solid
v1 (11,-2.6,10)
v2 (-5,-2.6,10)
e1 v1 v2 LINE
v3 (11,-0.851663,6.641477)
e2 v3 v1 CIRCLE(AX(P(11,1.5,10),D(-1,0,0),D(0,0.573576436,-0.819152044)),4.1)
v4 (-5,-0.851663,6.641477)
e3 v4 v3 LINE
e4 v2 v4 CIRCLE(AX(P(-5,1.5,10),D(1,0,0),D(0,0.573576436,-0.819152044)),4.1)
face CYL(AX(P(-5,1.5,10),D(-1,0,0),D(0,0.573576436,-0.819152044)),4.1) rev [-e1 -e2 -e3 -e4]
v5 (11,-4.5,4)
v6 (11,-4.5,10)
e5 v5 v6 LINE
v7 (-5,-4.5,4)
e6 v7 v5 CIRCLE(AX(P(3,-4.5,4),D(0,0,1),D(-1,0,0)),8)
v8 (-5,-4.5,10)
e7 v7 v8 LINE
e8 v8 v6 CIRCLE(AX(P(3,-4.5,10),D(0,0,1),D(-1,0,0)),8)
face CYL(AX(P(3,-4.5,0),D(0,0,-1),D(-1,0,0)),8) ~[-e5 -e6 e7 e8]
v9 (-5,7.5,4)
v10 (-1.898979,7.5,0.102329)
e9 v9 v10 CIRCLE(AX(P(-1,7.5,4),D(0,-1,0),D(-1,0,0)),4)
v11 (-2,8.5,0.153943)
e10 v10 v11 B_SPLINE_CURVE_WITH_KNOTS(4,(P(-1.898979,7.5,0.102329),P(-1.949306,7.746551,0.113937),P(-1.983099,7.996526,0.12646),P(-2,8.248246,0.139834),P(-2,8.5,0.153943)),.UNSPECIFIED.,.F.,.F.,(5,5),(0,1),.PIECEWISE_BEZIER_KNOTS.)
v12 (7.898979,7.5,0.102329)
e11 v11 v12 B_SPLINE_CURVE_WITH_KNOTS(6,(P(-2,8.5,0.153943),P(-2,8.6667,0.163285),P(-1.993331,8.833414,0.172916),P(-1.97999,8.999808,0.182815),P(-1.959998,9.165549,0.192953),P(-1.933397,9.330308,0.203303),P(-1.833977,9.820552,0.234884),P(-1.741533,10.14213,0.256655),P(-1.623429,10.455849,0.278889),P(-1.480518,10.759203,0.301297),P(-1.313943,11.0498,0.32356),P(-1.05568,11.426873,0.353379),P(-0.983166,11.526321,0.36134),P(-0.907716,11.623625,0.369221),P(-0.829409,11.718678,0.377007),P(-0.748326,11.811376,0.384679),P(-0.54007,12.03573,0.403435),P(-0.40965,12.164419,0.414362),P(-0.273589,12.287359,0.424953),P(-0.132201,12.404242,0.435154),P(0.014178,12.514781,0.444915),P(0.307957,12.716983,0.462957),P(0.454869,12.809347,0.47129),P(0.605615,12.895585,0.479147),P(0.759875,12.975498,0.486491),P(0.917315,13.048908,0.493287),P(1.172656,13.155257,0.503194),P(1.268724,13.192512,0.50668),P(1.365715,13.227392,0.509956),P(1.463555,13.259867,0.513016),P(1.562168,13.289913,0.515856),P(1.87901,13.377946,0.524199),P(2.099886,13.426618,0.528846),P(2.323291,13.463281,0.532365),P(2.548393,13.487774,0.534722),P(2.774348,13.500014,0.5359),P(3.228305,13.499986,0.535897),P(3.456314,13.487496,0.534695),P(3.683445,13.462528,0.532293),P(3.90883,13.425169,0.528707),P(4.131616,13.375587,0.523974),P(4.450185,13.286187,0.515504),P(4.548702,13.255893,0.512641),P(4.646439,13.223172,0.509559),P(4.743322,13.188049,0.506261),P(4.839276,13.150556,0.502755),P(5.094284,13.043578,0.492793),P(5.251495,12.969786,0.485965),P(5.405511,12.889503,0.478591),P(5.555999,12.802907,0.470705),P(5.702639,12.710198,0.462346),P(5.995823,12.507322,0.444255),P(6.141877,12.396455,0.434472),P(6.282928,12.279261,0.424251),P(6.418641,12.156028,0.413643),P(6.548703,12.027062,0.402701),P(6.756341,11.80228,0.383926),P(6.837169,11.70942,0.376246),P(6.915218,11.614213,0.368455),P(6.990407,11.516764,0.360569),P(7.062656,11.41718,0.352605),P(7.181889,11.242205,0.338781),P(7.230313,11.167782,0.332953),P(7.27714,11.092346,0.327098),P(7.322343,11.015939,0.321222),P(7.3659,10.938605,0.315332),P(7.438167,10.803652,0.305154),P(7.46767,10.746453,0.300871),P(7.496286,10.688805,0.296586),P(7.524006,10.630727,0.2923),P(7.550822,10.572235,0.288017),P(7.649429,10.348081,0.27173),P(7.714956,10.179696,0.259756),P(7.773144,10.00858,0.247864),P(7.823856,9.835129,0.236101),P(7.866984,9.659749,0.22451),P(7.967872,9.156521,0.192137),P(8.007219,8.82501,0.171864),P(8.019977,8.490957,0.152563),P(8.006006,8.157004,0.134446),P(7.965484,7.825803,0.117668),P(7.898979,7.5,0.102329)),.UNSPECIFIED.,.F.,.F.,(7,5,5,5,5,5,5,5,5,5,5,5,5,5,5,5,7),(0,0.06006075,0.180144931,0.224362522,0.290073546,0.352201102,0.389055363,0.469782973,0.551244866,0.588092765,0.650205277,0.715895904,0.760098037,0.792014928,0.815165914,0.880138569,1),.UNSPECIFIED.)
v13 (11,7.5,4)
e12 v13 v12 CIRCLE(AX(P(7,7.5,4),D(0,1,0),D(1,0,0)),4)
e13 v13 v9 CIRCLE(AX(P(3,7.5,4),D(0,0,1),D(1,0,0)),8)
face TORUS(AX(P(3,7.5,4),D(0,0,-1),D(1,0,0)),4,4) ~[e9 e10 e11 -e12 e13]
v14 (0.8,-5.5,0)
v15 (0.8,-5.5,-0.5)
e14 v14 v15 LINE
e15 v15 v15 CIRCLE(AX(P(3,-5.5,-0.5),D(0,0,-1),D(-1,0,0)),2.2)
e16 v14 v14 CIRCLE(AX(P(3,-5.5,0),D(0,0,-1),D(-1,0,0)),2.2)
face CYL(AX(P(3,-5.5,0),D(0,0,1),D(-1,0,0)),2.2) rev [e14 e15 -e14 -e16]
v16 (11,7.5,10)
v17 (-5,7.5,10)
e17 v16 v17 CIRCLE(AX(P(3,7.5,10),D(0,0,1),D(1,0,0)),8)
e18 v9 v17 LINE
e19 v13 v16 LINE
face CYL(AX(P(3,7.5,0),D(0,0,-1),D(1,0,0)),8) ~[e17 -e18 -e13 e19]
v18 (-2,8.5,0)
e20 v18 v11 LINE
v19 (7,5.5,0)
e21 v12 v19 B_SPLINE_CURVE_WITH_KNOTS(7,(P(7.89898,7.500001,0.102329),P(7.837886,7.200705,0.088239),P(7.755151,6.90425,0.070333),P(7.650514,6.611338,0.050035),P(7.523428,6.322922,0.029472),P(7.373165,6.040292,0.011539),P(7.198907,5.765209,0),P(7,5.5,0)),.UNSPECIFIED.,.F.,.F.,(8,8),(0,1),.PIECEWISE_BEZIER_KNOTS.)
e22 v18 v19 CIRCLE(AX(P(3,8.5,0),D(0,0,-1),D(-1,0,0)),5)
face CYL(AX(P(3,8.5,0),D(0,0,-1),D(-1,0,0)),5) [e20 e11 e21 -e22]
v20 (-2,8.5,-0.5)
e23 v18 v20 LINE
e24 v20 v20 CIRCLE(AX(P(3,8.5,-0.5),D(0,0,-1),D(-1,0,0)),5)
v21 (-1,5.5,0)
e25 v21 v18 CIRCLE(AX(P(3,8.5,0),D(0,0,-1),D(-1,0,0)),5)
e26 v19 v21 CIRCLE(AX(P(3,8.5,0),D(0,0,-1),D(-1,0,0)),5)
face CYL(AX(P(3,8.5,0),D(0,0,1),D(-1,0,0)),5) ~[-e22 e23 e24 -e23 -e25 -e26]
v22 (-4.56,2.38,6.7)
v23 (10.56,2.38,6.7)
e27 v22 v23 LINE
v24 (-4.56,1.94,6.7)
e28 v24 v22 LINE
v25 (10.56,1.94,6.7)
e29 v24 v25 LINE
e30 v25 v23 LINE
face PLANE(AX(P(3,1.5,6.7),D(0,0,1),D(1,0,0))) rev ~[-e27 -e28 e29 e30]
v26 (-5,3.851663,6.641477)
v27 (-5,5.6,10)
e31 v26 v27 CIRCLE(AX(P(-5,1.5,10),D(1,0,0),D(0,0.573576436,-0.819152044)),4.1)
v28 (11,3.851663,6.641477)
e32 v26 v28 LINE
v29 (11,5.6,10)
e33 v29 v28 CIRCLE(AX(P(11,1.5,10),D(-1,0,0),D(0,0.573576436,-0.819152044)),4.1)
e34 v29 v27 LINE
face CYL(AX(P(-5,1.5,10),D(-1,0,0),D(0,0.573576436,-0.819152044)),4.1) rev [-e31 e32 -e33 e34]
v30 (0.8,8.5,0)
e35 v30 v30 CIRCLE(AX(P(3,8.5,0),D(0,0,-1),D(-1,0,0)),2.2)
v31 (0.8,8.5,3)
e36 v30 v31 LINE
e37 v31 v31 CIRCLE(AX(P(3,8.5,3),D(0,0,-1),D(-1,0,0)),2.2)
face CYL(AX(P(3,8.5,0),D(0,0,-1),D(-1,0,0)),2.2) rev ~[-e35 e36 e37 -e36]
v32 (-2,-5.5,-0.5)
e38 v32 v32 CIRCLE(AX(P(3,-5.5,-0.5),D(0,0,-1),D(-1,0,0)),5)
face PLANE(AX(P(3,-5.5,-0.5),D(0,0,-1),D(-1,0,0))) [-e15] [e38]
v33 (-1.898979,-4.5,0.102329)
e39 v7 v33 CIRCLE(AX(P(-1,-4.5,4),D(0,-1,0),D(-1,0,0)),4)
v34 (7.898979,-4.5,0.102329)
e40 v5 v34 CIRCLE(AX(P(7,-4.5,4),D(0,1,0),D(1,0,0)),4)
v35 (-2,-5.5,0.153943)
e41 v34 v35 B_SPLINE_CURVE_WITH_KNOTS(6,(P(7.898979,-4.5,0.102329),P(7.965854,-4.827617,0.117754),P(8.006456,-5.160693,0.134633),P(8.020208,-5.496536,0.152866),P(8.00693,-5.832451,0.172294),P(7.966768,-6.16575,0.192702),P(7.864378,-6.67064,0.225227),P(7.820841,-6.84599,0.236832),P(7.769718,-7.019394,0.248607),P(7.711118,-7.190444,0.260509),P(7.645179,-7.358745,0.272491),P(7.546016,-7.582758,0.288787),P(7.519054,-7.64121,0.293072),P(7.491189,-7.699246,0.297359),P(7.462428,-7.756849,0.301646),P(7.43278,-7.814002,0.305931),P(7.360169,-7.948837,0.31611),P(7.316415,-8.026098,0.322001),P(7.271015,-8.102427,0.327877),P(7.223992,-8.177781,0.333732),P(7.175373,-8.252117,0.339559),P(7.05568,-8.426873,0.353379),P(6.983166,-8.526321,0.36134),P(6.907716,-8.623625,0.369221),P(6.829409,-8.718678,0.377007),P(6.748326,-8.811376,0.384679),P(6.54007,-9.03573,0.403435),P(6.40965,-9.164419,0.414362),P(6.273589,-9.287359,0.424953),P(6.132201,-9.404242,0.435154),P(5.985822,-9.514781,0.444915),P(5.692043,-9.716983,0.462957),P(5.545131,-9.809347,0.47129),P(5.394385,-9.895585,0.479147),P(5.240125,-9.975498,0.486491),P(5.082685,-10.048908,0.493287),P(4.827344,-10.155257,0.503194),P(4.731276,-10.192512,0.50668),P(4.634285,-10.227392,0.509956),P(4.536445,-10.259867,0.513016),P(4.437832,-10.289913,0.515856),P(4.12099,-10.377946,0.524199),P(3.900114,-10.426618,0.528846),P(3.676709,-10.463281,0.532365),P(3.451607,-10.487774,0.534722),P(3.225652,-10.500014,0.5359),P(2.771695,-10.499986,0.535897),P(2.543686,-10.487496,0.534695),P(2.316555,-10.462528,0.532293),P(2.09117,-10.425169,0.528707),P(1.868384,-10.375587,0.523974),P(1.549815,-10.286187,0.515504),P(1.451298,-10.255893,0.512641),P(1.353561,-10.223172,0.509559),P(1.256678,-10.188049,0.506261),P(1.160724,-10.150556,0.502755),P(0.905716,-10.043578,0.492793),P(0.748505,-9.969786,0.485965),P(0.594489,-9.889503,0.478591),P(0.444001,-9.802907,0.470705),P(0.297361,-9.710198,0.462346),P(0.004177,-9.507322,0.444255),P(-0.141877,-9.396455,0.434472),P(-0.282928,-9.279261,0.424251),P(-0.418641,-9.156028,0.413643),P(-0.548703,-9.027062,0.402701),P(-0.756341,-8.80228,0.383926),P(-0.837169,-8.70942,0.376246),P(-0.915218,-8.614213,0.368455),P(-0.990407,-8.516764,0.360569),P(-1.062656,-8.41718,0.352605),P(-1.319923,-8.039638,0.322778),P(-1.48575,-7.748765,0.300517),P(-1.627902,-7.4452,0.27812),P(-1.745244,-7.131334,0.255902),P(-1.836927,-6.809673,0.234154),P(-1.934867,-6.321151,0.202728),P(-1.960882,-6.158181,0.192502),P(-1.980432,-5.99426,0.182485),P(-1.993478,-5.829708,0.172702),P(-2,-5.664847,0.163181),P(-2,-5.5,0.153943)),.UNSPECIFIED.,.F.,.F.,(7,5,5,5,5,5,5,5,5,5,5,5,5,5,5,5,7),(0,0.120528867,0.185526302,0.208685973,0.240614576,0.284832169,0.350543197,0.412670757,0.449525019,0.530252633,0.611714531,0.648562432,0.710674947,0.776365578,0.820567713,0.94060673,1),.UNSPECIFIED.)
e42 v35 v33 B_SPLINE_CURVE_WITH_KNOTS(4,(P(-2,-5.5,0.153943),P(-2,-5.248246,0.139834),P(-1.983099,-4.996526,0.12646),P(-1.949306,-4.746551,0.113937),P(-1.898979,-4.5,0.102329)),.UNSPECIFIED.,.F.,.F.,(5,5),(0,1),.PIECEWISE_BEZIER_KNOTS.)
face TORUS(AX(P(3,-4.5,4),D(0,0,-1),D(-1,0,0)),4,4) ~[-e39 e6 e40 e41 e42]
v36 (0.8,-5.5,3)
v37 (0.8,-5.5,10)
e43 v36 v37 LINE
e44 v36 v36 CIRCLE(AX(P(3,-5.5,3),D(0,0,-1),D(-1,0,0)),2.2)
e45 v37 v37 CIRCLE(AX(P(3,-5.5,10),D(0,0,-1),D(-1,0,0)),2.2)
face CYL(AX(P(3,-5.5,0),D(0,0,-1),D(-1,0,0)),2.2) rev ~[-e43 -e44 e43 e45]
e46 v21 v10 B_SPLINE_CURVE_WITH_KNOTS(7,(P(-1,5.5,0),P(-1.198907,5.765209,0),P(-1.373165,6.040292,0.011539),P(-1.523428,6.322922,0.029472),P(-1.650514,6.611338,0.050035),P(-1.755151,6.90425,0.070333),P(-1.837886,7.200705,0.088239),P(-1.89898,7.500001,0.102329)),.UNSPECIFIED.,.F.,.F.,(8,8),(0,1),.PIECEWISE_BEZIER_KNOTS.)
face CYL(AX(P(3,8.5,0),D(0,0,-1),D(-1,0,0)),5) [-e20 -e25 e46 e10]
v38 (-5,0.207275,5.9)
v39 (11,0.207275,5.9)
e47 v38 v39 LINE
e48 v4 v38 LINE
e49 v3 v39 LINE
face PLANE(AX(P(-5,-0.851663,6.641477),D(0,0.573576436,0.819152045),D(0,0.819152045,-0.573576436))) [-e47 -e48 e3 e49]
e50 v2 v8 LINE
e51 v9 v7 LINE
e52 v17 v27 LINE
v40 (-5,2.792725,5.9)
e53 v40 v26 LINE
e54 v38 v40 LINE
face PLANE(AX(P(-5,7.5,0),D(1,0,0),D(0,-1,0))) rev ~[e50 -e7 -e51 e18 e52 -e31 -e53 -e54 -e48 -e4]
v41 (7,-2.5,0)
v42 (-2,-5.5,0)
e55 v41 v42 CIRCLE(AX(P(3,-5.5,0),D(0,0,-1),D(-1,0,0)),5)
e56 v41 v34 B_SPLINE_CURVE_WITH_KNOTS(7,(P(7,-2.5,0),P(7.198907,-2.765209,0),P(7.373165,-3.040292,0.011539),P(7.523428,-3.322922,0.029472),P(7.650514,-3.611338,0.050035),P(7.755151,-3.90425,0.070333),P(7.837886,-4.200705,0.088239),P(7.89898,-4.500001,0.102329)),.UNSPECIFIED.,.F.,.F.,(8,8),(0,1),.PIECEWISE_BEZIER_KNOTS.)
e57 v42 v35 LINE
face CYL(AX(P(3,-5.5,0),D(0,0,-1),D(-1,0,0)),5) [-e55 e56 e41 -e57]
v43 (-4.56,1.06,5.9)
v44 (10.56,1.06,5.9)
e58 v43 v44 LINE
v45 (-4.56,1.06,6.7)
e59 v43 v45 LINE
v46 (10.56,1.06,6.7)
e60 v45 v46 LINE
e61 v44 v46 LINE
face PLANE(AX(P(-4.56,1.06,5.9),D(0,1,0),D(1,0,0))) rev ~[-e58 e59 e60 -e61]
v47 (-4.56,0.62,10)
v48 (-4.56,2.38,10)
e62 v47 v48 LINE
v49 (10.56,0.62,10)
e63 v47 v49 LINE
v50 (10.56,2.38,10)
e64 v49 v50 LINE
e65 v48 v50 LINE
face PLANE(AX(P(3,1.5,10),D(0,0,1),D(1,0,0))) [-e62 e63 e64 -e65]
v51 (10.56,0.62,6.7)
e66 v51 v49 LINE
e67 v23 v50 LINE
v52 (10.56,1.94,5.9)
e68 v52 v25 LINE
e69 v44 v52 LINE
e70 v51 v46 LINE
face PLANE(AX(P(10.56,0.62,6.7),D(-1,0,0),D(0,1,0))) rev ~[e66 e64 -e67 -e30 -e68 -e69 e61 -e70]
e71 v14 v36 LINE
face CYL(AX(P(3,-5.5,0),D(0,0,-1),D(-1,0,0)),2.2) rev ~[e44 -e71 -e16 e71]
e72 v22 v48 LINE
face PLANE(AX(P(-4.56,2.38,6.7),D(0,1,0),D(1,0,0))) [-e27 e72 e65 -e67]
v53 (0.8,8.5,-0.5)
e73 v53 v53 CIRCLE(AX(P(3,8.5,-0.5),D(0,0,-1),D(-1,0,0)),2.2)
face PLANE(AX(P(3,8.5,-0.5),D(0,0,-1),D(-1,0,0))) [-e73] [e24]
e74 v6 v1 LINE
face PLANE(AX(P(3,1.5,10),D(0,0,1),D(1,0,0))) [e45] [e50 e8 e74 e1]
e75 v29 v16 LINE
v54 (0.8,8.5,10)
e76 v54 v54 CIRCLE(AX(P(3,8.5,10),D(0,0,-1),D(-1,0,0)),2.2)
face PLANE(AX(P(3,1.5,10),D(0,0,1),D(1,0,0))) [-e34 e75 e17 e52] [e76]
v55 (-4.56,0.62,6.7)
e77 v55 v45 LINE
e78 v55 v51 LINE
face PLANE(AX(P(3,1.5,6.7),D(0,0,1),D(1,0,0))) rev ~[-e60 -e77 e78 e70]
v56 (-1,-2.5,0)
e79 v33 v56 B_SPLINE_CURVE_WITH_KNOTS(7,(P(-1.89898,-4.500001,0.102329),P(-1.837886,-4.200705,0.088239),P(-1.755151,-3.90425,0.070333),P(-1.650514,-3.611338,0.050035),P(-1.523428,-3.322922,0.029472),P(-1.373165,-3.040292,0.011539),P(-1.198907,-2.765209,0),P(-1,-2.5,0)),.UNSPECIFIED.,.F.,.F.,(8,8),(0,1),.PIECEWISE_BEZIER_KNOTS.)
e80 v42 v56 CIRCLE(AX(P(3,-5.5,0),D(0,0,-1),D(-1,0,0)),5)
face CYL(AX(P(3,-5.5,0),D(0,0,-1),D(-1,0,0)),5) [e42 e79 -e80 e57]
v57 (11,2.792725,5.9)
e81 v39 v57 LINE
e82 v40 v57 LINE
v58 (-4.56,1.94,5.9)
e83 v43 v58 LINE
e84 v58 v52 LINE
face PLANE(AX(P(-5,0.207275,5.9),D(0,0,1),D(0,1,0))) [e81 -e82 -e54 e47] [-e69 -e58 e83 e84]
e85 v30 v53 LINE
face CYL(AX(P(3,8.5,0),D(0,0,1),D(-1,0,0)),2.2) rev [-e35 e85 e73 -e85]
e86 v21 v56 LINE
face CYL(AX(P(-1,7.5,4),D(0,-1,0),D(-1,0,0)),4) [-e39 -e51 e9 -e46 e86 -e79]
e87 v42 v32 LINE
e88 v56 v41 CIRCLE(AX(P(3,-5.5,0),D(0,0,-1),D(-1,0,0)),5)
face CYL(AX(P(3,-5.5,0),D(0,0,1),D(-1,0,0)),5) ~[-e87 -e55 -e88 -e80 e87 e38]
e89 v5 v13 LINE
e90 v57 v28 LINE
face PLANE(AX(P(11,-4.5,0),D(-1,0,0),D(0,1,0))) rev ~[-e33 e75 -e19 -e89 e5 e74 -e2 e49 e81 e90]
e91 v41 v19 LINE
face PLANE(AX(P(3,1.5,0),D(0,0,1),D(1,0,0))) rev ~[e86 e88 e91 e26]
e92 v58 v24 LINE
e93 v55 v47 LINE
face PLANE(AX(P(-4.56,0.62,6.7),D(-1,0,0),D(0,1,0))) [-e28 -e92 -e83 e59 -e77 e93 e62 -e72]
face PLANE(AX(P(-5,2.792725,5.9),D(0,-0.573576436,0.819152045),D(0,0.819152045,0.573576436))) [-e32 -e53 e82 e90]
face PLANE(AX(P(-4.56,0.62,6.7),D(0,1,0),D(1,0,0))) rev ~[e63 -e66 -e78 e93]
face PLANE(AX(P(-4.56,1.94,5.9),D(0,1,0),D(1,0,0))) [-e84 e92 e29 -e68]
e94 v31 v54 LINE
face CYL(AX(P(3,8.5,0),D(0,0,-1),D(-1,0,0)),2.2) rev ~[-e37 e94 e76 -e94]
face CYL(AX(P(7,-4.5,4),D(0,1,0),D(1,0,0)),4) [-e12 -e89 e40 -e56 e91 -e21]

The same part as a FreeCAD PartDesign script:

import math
import FreeCAD as App
import Part
import Sketcher
from FreeCAD import Vector
Q = App.Units.Quantity


def edges_at(feature, points):
    """Names of the edges that pass closest to the given points."""
    edges = feature.Shape.Edges
    near = lambda p: min(range(len(edges)), key=lambda i: edges[i].distToShape(Part.Vertex(*p))[0])
    return sorted({f"Edge{near(p) + 1}" for p in points})


def add_polygon(sketch, points):
    """Adds a closed chain of lines whose ends are joined by coincident constraints."""
    first, n = sketch.GeometryCount, len(points)
    for a, b in zip(points, points[1:] + points[:1]):
        sketch.addGeometry(Part.LineSegment(App.Vector(*a, 0), App.Vector(*b, 0)), False)
    for i in range(n):
        sketch.addConstraint(Sketcher.Constraint("Coincident", first + i, 2, first + (i + 1) % n, 1))

doc = App.newDocument("Part")
body = doc.addObject("PartDesign::Body", "Body")

# Sketch on XY plane
sketch1 = body.newObject("Sketcher::SketchObject", "Sketch")
sketch1.AttachmentSupport = (doc.getObject("XY_Plane"), [""])
sketch1.MapMode = "FlatFace"
sketch1.addGeometry(Part.LineSegment(Vector(-5, 7.5, 0), Vector(-5, -4.5, 0)), False)
sketch1.addGeometry(Part.ArcOfCircle(Part.Circle(Vector(3, -4.5, 0), Vector(0, 0, 1), 8), math.radians(180), math.radians(360)), False)
sketch1.addGeometry(Part.LineSegment(Vector(11, -4.5, 0), Vector(11, 7.5, 0)), False)
sketch1.addGeometry(Part.ArcOfCircle(Part.Circle(Vector(3, 7.5, 0), Vector(0, 0, 1), 8), math.radians(0), math.radians(180)), False)
sketch1.addConstraint(Sketcher.Constraint("Tangent", 0, 2, 1, 1))
sketch1.addConstraint(Sketcher.Constraint("Tangent", 1, 2, 2, 1))
sketch1.addConstraint(Sketcher.Constraint("Tangent", 2, 2, 3, 1))
sketch1.addConstraint(Sketcher.Constraint("Tangent", 3, 2, 0, 1))
sketch1.addConstraint(Sketcher.Constraint("Vertical", 0))
sketch1.addConstraint(Sketcher.Constraint("Vertical", 2))
sketch1.addConstraint(Sketcher.Constraint("Radius", 1, Q("8 mm")))
sketch1.addConstraint(Sketcher.Constraint("DistanceY", 0, 2, 0, 1, Q("12 mm")))
sketch1.addConstraint(Sketcher.Constraint("DistanceX", -1, 1, 1, 3, Q("3 mm")))
sketch1.addConstraint(Sketcher.Constraint("DistanceY", 1, 3, -1, 1, Q("4.5 mm")))
pad1 = body.newObject("PartDesign::Pad", "Pad")
pad1.Profile = sketch1
pad1.Length = 10

# Sketch on YZ plane
sketch2 = body.newObject("Sketcher::SketchObject", "Sketch001")
sketch2.AttachmentSupport = (doc.getObject("YZ_Plane"), [""])
sketch2.MapMode = "FlatFace"
sketch2.AttachmentOffset = App.Placement(Vector(0, 0, -5), App.Rotation())
sketch2.addGeometry(Part.LineSegment(Vector(0.207275, 5.9, 0), Vector(-0.851663, 6.641477, 0)), False)
sketch2.addGeometry(Part.ArcOfCircle(Part.Circle(Vector(1.5, 10, 0), Vector(0, 0, 1), 4.1), math.radians(-55), math.radians(235)), False)
sketch2.addGeometry(Part.LineSegment(Vector(3.851663, 6.641477, 0), Vector(2.792725, 5.9, 0)), False)
sketch2.addGeometry(Part.LineSegment(Vector(2.792725, 5.9, 0), Vector(0.207275, 5.9, 0)), False)
sketch2.addConstraint(Sketcher.Constraint("Tangent", 0, 2, 1, 2))
sketch2.addConstraint(Sketcher.Constraint("Tangent", 1, 1, 2, 1))
sketch2.addConstraint(Sketcher.Constraint("Coincident", 2, 2, 3, 1))
sketch2.addConstraint(Sketcher.Constraint("Coincident", 3, 2, 0, 1))
sketch2.addConstraint(Sketcher.Constraint("Horizontal", 3))
sketch2.addConstraint(Sketcher.Constraint("Horizontal", 0, 2, 1, 1))
sketch2.addConstraint(Sketcher.Constraint("Radius", 1, Q("4.1 mm")))
sketch2.addConstraint(Sketcher.Constraint("Angle", 0, Q("145 deg")))
sketch2.addConstraint(Sketcher.Constraint("DistanceY", -1, 1, 1, 3, Q("10 mm")))
sketch2.addConstraint(Sketcher.Constraint("DistanceX", -1, 1, 1, 3, Q("1.5 mm")))
sketch2.addConstraint(Sketcher.Constraint("DistanceY", -1, 1, 2, 2, Q("5.9 mm")))
pocket1 = body.newObject("PartDesign::Pocket", "Pocket")
pocket1.Profile = sketch2
pocket1.Type = "ThroughAll"
pocket1.Reversed = True

# Sketch on XY plane
sketch3 = body.newObject("Sketcher::SketchObject", "Sketch002")
sketch3.AttachmentSupport = (doc.getObject("XY_Plane"), [""])
sketch3.MapMode = "FlatFace"
sketch3.addGeometry(Part.Circle(Vector(3, 8.5, 0), Vector(0, 0, 1), 2.2), False)
sketch3.addGeometry(Part.Circle(Vector(3, -5.5, 0), Vector(0, 0, 1), 2.2), False)
sketch3.addConstraint(Sketcher.Constraint("Equal", 0, 1))
sketch3.addConstraint(Sketcher.Constraint("Vertical", 0, 3, 1, 3))
sketch3.addConstraint(Sketcher.Constraint("Diameter", 0, Q("4.4 mm")))
sketch3.addConstraint(Sketcher.Constraint("DistanceX", -1, 1, 0, 3, Q("3 mm")))
sketch3.addConstraint(Sketcher.Constraint("DistanceY", 1, 3, 0, 3, Q("14 mm")))
sketch3.addConstraint(Sketcher.Constraint("DistanceY", -1, 1, 0, 3, Q("8.5 mm")))
pocket2 = body.newObject("PartDesign::Pocket", "Pocket001")
pocket2.Profile = sketch3
pocket2.Type = "ThroughAll"
pocket2.Reversed = True
doc.recompute()

fillet = body.newObject("PartDesign::Fillet", "Fillet")
fillet.Base = (pocket2, edges_at(pocket2, [
    (-5, 1.5, 0),
    (3, 15.5, 0),
    (11, 1.5, 0),
    (3, -12.5, 0),
]))
fillet.Radius = 4

# Sketch on XY plane
sketch4 = body.newObject("Sketcher::SketchObject", "Sketch003")
sketch4.AttachmentSupport = (doc.getObject("XY_Plane"), [""])
sketch4.MapMode = "FlatFace"
sketch4.addGeometry(Part.Circle(Vector(3, 8.5, 0), Vector(0, 0, 1), 5), False)
sketch4.addGeometry(Part.Circle(Vector(3, 8.5, 0), Vector(0, 0, 1), 2.2), False)
sketch4.addGeometry(Part.Circle(Vector(3, -5.5, 0), Vector(0, 0, 1), 5), False)
sketch4.addGeometry(Part.Circle(Vector(3, -5.5, 0), Vector(0, 0, 1), 2.2), False)
sketch4.addConstraint(Sketcher.Constraint("Coincident", 1, 3, 0, 3))
sketch4.addConstraint(Sketcher.Constraint("Coincident", 3, 3, 2, 3))
sketch4.addConstraint(Sketcher.Constraint("Equal", 0, 2))
sketch4.addConstraint(Sketcher.Constraint("Equal", 1, 3))
sketch4.addConstraint(Sketcher.Constraint("Vertical", 1, 3, 2, 3))
sketch4.addConstraint(Sketcher.Constraint("Diameter", 0, Q("10 mm")))
sketch4.addConstraint(Sketcher.Constraint("Diameter", 1, Q("4.4 mm")))
sketch4.addConstraint(Sketcher.Constraint("DistanceX", -1, 1, 0, 3, Q("3 mm")))
sketch4.addConstraint(Sketcher.Constraint("DistanceY", 2, 3, 0, 3, Q("14 mm")))
sketch4.addConstraint(Sketcher.Constraint("DistanceY", -1, 1, 0, 3, Q("8.5 mm")))
pad2 = body.newObject("PartDesign::Pad", "Pad001")
pad2.Profile = sketch4
pad2.Type = "TwoLengths"
pad2.Length = 0.5
pad2.Length2 = 3
pad2.Reversed = True

# Sketch on XY plane
sketch5 = body.newObject("Sketcher::SketchObject", "Sketch004")
sketch5.AttachmentSupport = (doc.getObject("XY_Plane"), [""])
sketch5.MapMode = "FlatFace"
sketch5.AttachmentOffset = App.Placement(Vector(0, 0, 5.9), App.Rotation())
add_polygon(sketch5, [(-4.56, 1.94), (-4.56, 1.06), (10.56, 1.06), (10.56, 1.94)])  # lines 0-3
sketch5.addConstraint(Sketcher.Constraint("Vertical", 0))
sketch5.addConstraint(Sketcher.Constraint("Horizontal", 1))
sketch5.addConstraint(Sketcher.Constraint("Vertical", 2))
sketch5.addConstraint(Sketcher.Constraint("Horizontal", 3))
sketch5.addConstraint(Sketcher.Constraint("DistanceX", 1, 1, 1, 2, Q("15.12 mm")))
sketch5.addConstraint(Sketcher.Constraint("DistanceY", 0, 2, 0, 1, Q("0.88 mm")))
sketch5.addConstraint(Sketcher.Constraint("DistanceX", 0, 2, -1, 1, Q("4.56 mm")))
sketch5.addConstraint(Sketcher.Constraint("DistanceY", -1, 1, 0, 2, Q("1.06 mm")))
pad3 = body.newObject("PartDesign::Pad", "Pad002")
pad3.Profile = sketch5
pad3.Length = 0.8

# Sketch on XY plane
sketch6 = body.newObject("Sketcher::SketchObject", "Sketch005")
sketch6.AttachmentSupport = (doc.getObject("XY_Plane"), [""])
sketch6.MapMode = "FlatFace"
sketch6.AttachmentOffset = App.Placement(Vector(0, 0, 6.7), App.Rotation())
add_polygon(sketch6, [(-4.56, 2.38), (-4.56, 0.62), (10.56, 0.62), (10.56, 2.38)])  # lines 0-3
sketch6.addConstraint(Sketcher.Constraint("Vertical", 0))
sketch6.addConstraint(Sketcher.Constraint("Horizontal", 1))
sketch6.addConstraint(Sketcher.Constraint("Vertical", 2))
sketch6.addConstraint(Sketcher.Constraint("Horizontal", 3))
sketch6.addConstraint(Sketcher.Constraint("DistanceX", 1, 1, 1, 2, Q("15.12 mm")))
sketch6.addConstraint(Sketcher.Constraint("DistanceY", 0, 2, 0, 1, Q("1.76 mm")))
sketch6.addConstraint(Sketcher.Constraint("DistanceX", 0, 2, -1, 1, Q("4.56 mm")))
sketch6.addConstraint(Sketcher.Constraint("DistanceY", -1, 1, 0, 2, Q("0.62 mm")))
pad4 = body.newObject("PartDesign::Pad", "Pad003")
pad4.Profile = sketch6
pad4.Length = 3.3

doc.recompute()
